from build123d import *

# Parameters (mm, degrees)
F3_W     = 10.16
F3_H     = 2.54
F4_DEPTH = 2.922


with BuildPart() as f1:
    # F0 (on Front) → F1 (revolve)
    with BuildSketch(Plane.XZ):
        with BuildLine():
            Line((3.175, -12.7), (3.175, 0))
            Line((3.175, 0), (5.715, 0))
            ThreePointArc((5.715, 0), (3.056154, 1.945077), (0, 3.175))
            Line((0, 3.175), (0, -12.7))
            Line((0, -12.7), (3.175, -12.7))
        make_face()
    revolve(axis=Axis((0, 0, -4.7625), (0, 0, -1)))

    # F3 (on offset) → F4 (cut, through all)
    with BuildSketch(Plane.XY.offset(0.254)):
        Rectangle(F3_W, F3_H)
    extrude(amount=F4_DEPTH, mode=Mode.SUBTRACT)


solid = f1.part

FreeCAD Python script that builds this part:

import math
import FreeCAD as App
import Part
import Sketcher
from FreeCAD import Vector
Q = App.Units.Quantity

doc = App.newDocument("Part")
body = doc.addObject("PartDesign::Body", "Body")

sketch1 = body.newObject("Sketcher::SketchObject", "Sketch")
sketch1.AttachmentSupport = (doc.getObject("XZ_Plane"), [""])
sketch1.MapMode = "FlatFace"
sketch1.addGeometry([
    Part.LineSegment(Vector(3.175, -12.7, 0), Vector(3.175, 0, 0)),
    Part.LineSegment(Vector(3.175, 0, 0), Vector(5.715, 0, 0)),
    Part.ArcOfCircle(Part.Circle(Vector(-3.386255, -9.65126, 0), Vector(0, 0, 1), 13.265733), math.radians(46.679982), math.radians(75.21081)),
    Part.LineSegment(Vector(0, 3.175, 0), Vector(0, -12.7, 0)),
    Part.LineSegment(Vector(0, -12.7, 0), Vector(3.175, -12.7, 0)),
], False)
sketch1.addConstraint([
    Sketcher.Constraint("Coincident", 0, 2, 1, 1),
    Sketcher.Constraint("Coincident", 1, 2, 2, 1),
    Sketcher.Constraint("Coincident", 2, 2, 3, 1),
    Sketcher.Constraint("Coincident", 3, 2, 4, 1),
    Sketcher.Constraint("Coincident", 4, 2, 0, 1),
    Sketcher.Constraint("Vertical", 0),
    Sketcher.Constraint("Horizontal", 1),
    Sketcher.Constraint("Vertical", 3),
    Sketcher.Constraint("Horizontal", 4),
    Sketcher.Constraint("PointOnObject", 0, 2, -1),
    Sketcher.Constraint("PointOnObject", 2, 2, -2),
    Sketcher.Constraint("DistanceX", 1, 1, 1, 2, Q("0.1 in")),
    Sketcher.Constraint("DistanceY", 0, 1, 0, 2, Q("0.5 in")),
    Sketcher.Constraint("DistanceX", 4, 1, 4, 2, Q("0.125 in")),
    Sketcher.Constraint("DistanceY", 3, 2, 3, 1, Q("0.625 in")),
    Sketcher.Constraint("Radius", 2, Q("13.265733 mm")),
])
revolution = body.newObject("PartDesign::Revolution", "Revolution")
revolution.Profile = sketch1
revolution.ReferenceAxis = (sketch1, ["V_Axis"])
revolution.Angle = 360

sketch2 = body.newObject("Sketcher::SketchObject", "Sketch001")
sketch2.AttachmentSupport = (doc.getObject("XY_Plane"), [""])
sketch2.MapMode = "FlatFace"
sketch2.AttachmentOffset = App.Placement(Vector(0, 0, 0.01 * 25.4), App.Rotation())
sketch2.addGeometry([
    Part.LineSegment(Vector(-5.08, 1.27, 0), Vector(-5.08, -1.27, 0)),
    Part.LineSegment(Vector(-5.08, -1.27, 0), Vector(5.08, -1.27, 0)),
    Part.LineSegment(Vector(5.08, -1.27, 0), Vector(5.08, 1.27, 0)),
    Part.LineSegment(Vector(5.08, 1.27, 0), Vector(-5.08, 1.27, 0)),
], False)
sketch2.addConstraint([
    Sketcher.Constraint("Coincident", 0, 2, 1, 1),
    Sketcher.Constraint("Coincident", 1, 2, 2, 1),
    Sketcher.Constraint("Coincident", 2, 2, 3, 1),
    Sketcher.Constraint("Coincident", 3, 2, 0, 1),
    Sketcher.Constraint("Vertical", 0),
    Sketcher.Constraint("Horizontal", 1),
    Sketcher.Constraint("Vertical", 2),
    Sketcher.Constraint("Horizontal", 3),
    Sketcher.Constraint("Symmetric", 0, 2, 2, 2, -1, 1),
    Sketcher.Constraint("DistanceX", 1, 1, 1, 2, Q("0.4 in")),
    Sketcher.Constraint("DistanceY", 0, 2, 0, 1, Q("0.1 in")),
])
pocket1 = body.newObject("PartDesign::Pocket", "Pocket")
pocket1.Profile = sketch2
pocket1.Type = "ThroughAll"
pocket1.Reversed = True

doc.recompute()
